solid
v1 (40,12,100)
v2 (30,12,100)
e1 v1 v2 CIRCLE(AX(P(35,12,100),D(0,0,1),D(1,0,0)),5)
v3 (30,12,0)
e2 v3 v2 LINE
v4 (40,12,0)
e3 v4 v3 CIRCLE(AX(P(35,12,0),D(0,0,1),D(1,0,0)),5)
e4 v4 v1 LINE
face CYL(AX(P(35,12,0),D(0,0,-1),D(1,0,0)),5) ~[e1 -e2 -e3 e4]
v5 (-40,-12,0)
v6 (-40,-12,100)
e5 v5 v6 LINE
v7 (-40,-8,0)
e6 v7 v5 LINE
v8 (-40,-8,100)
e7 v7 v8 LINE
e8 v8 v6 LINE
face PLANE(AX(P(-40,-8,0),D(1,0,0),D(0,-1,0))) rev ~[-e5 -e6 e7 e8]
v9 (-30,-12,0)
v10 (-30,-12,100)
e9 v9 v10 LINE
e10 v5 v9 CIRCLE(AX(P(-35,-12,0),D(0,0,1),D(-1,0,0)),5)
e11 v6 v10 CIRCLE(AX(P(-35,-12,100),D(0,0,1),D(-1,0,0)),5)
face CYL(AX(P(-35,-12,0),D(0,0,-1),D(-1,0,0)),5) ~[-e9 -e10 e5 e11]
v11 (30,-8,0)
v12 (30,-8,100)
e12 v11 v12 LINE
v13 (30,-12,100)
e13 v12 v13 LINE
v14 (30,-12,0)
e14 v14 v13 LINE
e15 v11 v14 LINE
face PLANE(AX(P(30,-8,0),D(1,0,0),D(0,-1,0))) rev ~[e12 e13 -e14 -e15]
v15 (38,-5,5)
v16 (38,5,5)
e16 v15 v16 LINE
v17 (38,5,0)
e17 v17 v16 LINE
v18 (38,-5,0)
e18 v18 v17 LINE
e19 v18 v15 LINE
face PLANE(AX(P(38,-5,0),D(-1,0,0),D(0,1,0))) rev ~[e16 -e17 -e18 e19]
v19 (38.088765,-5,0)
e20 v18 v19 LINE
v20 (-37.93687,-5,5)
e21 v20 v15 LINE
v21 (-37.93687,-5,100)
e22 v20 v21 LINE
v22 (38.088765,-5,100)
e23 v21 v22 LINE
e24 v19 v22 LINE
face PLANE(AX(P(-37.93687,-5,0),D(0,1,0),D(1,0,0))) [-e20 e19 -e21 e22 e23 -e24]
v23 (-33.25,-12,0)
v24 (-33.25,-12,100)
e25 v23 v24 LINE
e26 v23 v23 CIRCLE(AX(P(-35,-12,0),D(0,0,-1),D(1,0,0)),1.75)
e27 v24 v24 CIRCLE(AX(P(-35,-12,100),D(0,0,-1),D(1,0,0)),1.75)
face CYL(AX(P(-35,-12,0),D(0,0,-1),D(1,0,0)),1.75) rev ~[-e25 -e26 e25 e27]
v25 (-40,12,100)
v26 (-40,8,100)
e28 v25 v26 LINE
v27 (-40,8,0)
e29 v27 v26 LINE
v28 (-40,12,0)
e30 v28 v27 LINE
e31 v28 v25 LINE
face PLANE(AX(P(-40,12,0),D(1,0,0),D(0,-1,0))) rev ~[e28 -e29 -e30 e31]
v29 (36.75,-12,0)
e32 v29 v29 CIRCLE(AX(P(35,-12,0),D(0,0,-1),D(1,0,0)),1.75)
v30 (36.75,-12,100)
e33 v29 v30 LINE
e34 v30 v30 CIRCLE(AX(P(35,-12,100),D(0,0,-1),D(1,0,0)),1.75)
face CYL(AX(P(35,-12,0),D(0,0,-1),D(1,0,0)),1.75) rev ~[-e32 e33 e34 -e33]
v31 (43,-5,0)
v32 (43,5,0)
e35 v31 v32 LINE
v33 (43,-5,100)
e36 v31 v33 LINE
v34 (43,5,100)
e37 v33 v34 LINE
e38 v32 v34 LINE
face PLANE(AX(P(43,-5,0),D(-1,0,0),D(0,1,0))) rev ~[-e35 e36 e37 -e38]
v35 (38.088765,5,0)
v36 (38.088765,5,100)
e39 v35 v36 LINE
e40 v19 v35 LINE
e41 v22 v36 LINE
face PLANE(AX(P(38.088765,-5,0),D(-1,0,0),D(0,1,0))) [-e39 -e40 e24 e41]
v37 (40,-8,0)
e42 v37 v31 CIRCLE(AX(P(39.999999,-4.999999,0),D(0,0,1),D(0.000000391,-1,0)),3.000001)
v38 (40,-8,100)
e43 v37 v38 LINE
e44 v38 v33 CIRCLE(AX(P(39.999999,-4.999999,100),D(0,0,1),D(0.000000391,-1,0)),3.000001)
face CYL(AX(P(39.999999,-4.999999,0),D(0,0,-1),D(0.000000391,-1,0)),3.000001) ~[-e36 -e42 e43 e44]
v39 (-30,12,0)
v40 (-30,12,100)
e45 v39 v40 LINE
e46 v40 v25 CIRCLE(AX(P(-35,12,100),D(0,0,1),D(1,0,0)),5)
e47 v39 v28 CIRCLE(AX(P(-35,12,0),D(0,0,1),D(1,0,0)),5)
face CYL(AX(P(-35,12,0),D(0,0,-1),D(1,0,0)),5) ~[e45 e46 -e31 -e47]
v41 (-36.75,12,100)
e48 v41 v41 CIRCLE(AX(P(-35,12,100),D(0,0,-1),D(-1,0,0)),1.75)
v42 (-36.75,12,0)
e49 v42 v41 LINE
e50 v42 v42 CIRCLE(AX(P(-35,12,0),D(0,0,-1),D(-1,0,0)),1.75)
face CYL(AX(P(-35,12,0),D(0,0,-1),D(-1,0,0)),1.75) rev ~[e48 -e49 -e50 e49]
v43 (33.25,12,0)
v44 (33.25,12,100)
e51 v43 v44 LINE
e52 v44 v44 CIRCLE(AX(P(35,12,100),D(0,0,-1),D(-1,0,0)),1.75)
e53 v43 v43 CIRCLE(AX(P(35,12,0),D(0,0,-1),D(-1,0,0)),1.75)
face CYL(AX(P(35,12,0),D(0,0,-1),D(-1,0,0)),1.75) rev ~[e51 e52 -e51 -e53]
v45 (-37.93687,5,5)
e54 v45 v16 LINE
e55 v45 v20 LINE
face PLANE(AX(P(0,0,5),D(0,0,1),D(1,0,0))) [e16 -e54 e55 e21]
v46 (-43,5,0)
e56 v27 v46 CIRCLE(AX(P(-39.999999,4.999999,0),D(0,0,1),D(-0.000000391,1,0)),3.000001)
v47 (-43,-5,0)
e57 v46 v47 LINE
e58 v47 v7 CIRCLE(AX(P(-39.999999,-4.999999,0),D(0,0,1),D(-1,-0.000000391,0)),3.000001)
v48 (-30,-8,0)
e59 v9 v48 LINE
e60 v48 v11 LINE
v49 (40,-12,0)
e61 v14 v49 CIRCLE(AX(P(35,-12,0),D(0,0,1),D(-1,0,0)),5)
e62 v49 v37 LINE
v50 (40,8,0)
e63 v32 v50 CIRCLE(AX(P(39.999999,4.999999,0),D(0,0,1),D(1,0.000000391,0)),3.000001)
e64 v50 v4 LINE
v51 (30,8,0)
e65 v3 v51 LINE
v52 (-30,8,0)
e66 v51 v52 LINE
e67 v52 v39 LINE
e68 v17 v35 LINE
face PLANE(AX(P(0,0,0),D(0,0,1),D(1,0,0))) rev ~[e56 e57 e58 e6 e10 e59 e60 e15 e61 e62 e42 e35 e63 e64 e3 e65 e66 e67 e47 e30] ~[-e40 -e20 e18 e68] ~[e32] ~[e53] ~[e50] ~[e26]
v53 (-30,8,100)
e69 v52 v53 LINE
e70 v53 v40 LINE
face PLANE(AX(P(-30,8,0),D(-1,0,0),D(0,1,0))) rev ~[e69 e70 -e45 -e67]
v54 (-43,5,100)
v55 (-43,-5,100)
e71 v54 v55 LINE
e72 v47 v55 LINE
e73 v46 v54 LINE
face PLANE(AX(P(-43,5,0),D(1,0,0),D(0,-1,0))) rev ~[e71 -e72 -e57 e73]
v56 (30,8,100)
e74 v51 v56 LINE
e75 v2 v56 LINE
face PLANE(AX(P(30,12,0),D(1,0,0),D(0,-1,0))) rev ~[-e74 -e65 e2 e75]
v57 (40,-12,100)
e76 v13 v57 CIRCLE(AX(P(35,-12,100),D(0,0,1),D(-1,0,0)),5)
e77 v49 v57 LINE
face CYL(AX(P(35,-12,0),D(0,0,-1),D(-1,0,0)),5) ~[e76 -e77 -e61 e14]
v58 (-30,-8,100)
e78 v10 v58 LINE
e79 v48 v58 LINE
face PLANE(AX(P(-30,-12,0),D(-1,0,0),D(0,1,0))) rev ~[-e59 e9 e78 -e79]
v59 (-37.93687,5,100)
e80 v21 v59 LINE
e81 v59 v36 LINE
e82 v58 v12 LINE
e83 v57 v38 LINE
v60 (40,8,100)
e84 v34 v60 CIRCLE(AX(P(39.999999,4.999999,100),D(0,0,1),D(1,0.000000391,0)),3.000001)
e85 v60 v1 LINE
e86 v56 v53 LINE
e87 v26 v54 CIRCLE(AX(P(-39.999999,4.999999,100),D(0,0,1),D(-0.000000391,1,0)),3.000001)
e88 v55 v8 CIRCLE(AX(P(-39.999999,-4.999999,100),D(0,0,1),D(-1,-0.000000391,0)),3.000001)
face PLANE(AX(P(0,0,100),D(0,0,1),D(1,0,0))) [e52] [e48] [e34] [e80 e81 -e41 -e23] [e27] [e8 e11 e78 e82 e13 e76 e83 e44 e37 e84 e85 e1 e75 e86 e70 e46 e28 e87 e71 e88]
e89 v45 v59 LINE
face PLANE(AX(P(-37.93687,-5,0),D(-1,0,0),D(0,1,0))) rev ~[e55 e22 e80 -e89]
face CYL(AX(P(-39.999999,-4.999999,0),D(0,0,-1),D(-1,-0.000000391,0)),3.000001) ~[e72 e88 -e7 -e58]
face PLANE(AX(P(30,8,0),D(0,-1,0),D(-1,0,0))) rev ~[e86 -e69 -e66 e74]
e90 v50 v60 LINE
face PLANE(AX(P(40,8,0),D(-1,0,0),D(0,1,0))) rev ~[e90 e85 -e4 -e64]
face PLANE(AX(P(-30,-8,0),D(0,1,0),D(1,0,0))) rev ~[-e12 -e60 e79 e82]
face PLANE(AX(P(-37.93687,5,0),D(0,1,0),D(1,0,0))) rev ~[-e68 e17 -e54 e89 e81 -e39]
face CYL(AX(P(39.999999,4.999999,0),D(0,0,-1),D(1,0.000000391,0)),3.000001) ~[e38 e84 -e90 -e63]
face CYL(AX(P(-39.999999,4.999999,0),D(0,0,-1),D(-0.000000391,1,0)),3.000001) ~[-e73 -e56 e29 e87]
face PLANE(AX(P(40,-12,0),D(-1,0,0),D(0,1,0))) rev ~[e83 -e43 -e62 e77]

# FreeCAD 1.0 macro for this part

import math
import FreeCAD as App
import Part
import Sketcher

V = App.Vector


def add_polygon(sketch, points):
    """Adds a closed chain of lines whose ends are joined by coincident constraints."""
    first, n = sketch.GeometryCount, len(points)
    for a, b in zip(points, points[1:] + points[:1]):
        sketch.addGeometry(Part.LineSegment(App.Vector(*a, 0), App.Vector(*b, 0)), False)
    for i in range(n):
        sketch.addConstraint(Sketcher.Constraint("Coincident", first + i, 2, first + (i + 1) % n, 1))

doc = App.newDocument("Part")
body = doc.addObject("PartDesign::Body", "Body")

# Sketch on XY plane
sketch1 = body.newObject("Sketcher::SketchObject", "Sketch")
sketch1.AttachmentSupport = (doc.getObject("XY_Plane"), [""])
sketch1.MapMode = "FlatFace"
add_polygon(sketch1, [(-38, 5), (-38, -5), (38, -5), (38, 5)])  # lines 0-3
sketch1.addConstraint(Sketcher.Constraint("Vertical", 0))
sketch1.addConstraint(Sketcher.Constraint("Horizontal", 1))
sketch1.addConstraint(Sketcher.Constraint("Vertical", 2))
sketch1.addConstraint(Sketcher.Constraint("Horizontal", 3))
sketch1.addConstraint(Sketcher.Constraint("Symmetric", 0, 2, 2, 2, -1, 1))
sketch1.addConstraint(Sketcher.Constraint("DistanceX", 1, 1, 1, 2, 76.0))
sketch1.addConstraint(Sketcher.Constraint("DistanceY", 0, 2, 0, 1, 10.0))
pad1 = body.newObject("PartDesign::Pad", "Pad")
pad1.Profile = sketch1
pad1.Length = 5

# Sketch on XY plane
sketch2 = body.newObject("Sketcher::SketchObject", "Sketch001")
sketch2.AttachmentSupport = (doc.getObject("XY_Plane"), [""])
sketch2.MapMode = "FlatFace"
sketch2.addGeometry(Part.ArcOfCircle(Part.Circle(V(40, 5, 0), V(0, 0, 1), 3), math.radians(0), math.radians(90)), False)  # 0
sketch2.addGeometry(Part.LineSegment(V(40, 8, 0), V(40, 12, 0)), False)  # 1
sketch2.addGeometry(Part.ArcOfCircle(Part.Circle(V(35, 12, 0), V(0, 0, 1), 5), math.radians(0), math.radians(180)), False)  # 2
sketch2.addGeometry(Part.LineSegment(V(30, 12, 0), V(30, 8, 0)), False)  # 3
sketch2.addGeometry(Part.LineSegment(V(30, 8, 0), V(-30, 8, 0)), False)  # 4
sketch2.addGeometry(Part.LineSegment(V(-30, 8, 0), V(-30, 12, 0)), False)  # 5
sketch2.addGeometry(Part.ArcOfCircle(Part.Circle(V(-35, 12, 0), V(0, 0, 1), 5), math.radians(0), math.radians(180)), False)  # 6
sketch2.addGeometry(Part.LineSegment(V(-40, 12, 0), V(-40, 8, 0)), False)  # 7
sketch2.addGeometry(Part.ArcOfCircle(Part.Circle(V(-40, 5, 0), V(0, 0, 1), 3), math.radians(90), math.radians(180)), False)  # 8
sketch2.addGeometry(Part.LineSegment(V(-43, 5, 0), V(-43, -5, 0)), False)  # 9
sketch2.addGeometry(Part.ArcOfCircle(Part.Circle(V(-40, -5, 0), V(0, 0, 1), 3), math.radians(-180), math.radians(-90)), False)  # 10
sketch2.addGeometry(Part.LineSegment(V(-40, -8, 0), V(-40, -12, 0)), False)  # 11
sketch2.addGeometry(Part.ArcOfCircle(Part.Circle(V(-35, -12, 0), V(0, 0, 1), 5), math.radians(180), math.radians(360)), False)  # 12
sketch2.addGeometry(Part.LineSegment(V(-30, -12, 0), V(-30, -8, 0)), False)  # 13
sketch2.addGeometry(Part.LineSegment(V(-30, -8, 0), V(30, -8, 0)), False)  # 14
sketch2.addGeometry(Part.LineSegment(V(30, -8, 0), V(30, -12, 0)), False)  # 15
sketch2.addGeometry(Part.ArcOfCircle(Part.Circle(V(35, -12, 0), V(0, 0, 1), 5), math.radians(180), math.radians(360)), False)  # 16
sketch2.addGeometry(Part.LineSegment(V(40, -12, 0), V(40, -8, 0)), False)  # 17
sketch2.addGeometry(Part.ArcOfCircle(Part.Circle(V(40, -5, 0), V(0, 0, 1), 3), math.radians(-90), math.radians(0)), False)  # 18
sketch2.addGeometry(Part.LineSegment(V(43, -5, 0), V(43, 5, 0)), False)  # 19
sketch2.addGeometry(Part.Circle(V(-35, -12, 0), V(0, 0, 1), 1.8), False)  # 20
sketch2.addGeometry(Part.Circle(V(35, -12, 0), V(0, 0, 1), 1.8), False)  # 21
sketch2.addGeometry(Part.Circle(V(-35, 12, 0), V(0, 0, 1), 1.8), False)  # 22
sketch2.addGeometry(Part.Circle(V(35, 12, 0), V(0, 0, 1), 1.8), False)  # 23
add_polygon(sketch2, [(38.1, -5), (-37.9, -5), (-37.9, 5), (38.1, 5)])  # lines 24-27
sketch2.addConstraint(Sketcher.Constraint("Coincident", 0, 2, 1, 1))
sketch2.addConstraint(Sketcher.Constraint("Tangent", 1, 2, 2, 1))
sketch2.addConstraint(Sketcher.Constraint("Tangent", 2, 2, 3, 1))
sketch2.addConstraint(Sketcher.Constraint("Coincident", 3, 2, 4, 1))
sketch2.addConstraint(Sketcher.Constraint("Coincident", 4, 2, 5, 1))
sketch2.addConstraint(Sketcher.Constraint("Tangent", 5, 2, 6, 1))
sketch2.addConstraint(Sketcher.Constraint("Tangent", 6, 2, 7, 1))
sketch2.addConstraint(Sketcher.Constraint("Coincident", 7, 2, 8, 1))
sketch2.addConstraint(Sketcher.Constraint("Tangent", 8, 2, 9, 1))
sketch2.addConstraint(Sketcher.Constraint("Tangent", 9, 2, 10, 1))
sketch2.addConstraint(Sketcher.Constraint("Coincident", 10, 2, 11, 1))
sketch2.addConstraint(Sketcher.Constraint("Tangent", 11, 2, 12, 1))
sketch2.addConstraint(Sketcher.Constraint("Tangent", 12, 2, 13, 1))
sketch2.addConstraint(Sketcher.Constraint("Coincident", 13, 2, 14, 1))
sketch2.addConstraint(Sketcher.Constraint("Coincident", 14, 2, 15, 1))
sketch2.addConstraint(Sketcher.Constraint("Tangent", 15, 2, 16, 1))
sketch2.addConstraint(Sketcher.Constraint("Tangent", 16, 2, 17, 1))
sketch2.addConstraint(Sketcher.Constraint("Coincident", 17, 2, 18, 1))
sketch2.addConstraint(Sketcher.Constraint("Tangent", 18, 2, 19, 1))
sketch2.addConstraint(Sketcher.Constraint("Tangent", 19, 2, 0, 1))
sketch2.addConstraint(Sketcher.Constraint("Vertical", 1))
sketch2.addConstraint(Sketcher.Constraint("Vertical", 3))
sketch2.addConstraint(Sketcher.Constraint("Horizontal", 4))
sketch2.addConstraint(Sketcher.Constraint("Vertical", 5))
sketch2.addConstraint(Sketcher.Constraint("Vertical", 7))
sketch2.addConstraint(Sketcher.Constraint("Vertical", 9))
sketch2.addConstraint(Sketcher.Constraint("Vertical", 11))
sketch2.addConstraint(Sketcher.Constraint("Vertical", 13))
sketch2.addConstraint(Sketcher.Constraint("Horizontal", 14))
sketch2.addConstraint(Sketcher.Constraint("Vertical", 15))
sketch2.addConstraint(Sketcher.Constraint("Vertical", 17))
sketch2.addConstraint(Sketcher.Constraint("Vertical", 19))
sketch2.addConstraint(Sketcher.Constraint("Horizontal", 24))
sketch2.addConstraint(Sketcher.Constraint("Vertical", 25))
sketch2.addConstraint(Sketcher.Constraint("Horizontal", 26))
sketch2.addConstraint(Sketcher.Constraint("Vertical", 27))
sketch2.addConstraint(Sketcher.Constraint("Coincident", 20, 3, 12, 3))
sketch2.addConstraint(Sketcher.Constraint("Coincident", 21, 3, 16, 3))
sketch2.addConstraint(Sketcher.Constraint("Coincident", 22, 3, 6, 3))
sketch2.addConstraint(Sketcher.Constraint("Coincident", 23, 3, 2, 3))
sketch2.addConstraint(Sketcher.Constraint("Equal", 2, 6))
sketch2.addConstraint(Sketcher.Constraint("Equal", 0, 8))
sketch2.addConstraint(Sketcher.Constraint("Equal", 8, 10))
sketch2.addConstraint(Sketcher.Constraint("Equal", 6, 12))
sketch2.addConstraint(Sketcher.Constraint("Equal", 12, 16))
sketch2.addConstraint(Sketcher.Constraint("Equal", 10, 18))
sketch2.addConstraint(Sketcher.Constraint("Equal", 20, 21))
sketch2.addConstraint(Sketcher.Constraint("Equal", 21, 22))
sketch2.addConstraint(Sketcher.Constraint("Equal", 22, 23))
sketch2.addConstraint(Sketcher.Constraint("Symmetric", 0, 3, 10, 3, -1, 1))
sketch2.addConstraint(Sketcher.Constraint("Symmetric", 2, 3, 12, 3, -1, 1))
sketch2.addConstraint(Sketcher.Constraint("Symmetric", 6, 3, 16, 3, -1, 1))
sketch2.addConstraint(Sketcher.Constraint("Symmetric", 2, 3, 6, 3, -2))
sketch2.addConstraint(Sketcher.Constraint("Horizontal", 0, 3, 8, 3))
sketch2.addConstraint(Sketcher.Constraint("Horizontal", 10, 3, 18, 3))
sketch2.addConstraint(Sketcher.Constraint("Horizontal", 0, 2, 3, 2))
sketch2.addConstraint(Sketcher.Constraint("Horizontal", 10, 2, 13, 2))
sketch2.addConstraint(Sketcher.Constraint("Horizontal", 18, 2, 24, 2))
sketch2.addConstraint(Sketcher.Constraint("Horizontal", 19, 2, 25, 2))
sketch2.addConstraint(Sketcher.Constraint("Vertical", 18, 3, 0, 2))
sketch2.addConstraint(Sketcher.Constraint("Radius", 0, 3.000001))
sketch2.addConstraint(Sketcher.Constraint("Radius", 2, 5.0))
sketch2.addConstraint(Sketcher.Constraint("Diameter", 20, 3.5))
sketch2.addConstraint(Sketcher.Constraint("DistanceX", 4, 2, 4, 1, 60.0))
sketch2.addConstraint(Sketcher.Constraint("DistanceY", 1, 1, 1, 2, 4.0))
sketch2.addConstraint(Sketcher.Constraint("DistanceY", 9, 2, 9, 1, 10.0))
sketch2.addConstraint(Sketcher.Constraint("DistanceX", 24, 2, 24, 1, 76.025635))
sketch2.addConstraint(Sketcher.Constraint("DistanceX", 24, 2, -1, 1, 37.93687))
pad2 = body.newObject("PartDesign::Pad", "Pad001")
pad2.Profile = sketch2
pad2.Length = 100

doc.recompute()
